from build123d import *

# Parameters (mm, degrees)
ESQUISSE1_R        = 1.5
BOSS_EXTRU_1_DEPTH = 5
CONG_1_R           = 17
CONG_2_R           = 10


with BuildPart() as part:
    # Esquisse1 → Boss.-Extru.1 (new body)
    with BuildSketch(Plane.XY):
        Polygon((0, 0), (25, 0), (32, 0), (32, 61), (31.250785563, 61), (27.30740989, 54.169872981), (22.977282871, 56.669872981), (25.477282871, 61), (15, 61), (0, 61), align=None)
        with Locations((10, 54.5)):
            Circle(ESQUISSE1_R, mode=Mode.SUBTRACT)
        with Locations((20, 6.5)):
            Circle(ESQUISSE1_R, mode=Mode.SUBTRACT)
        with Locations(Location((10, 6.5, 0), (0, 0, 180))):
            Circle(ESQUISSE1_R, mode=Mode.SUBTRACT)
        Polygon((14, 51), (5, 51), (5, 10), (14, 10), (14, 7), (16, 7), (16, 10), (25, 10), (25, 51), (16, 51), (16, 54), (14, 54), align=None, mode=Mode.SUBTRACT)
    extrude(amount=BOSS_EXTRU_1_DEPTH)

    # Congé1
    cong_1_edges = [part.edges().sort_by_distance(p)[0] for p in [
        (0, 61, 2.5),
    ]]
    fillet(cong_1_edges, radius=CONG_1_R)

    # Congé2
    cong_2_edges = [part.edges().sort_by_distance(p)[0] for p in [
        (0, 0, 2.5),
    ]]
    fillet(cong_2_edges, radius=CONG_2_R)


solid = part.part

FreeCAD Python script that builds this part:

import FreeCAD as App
import Part
import Sketcher
Q = App.Units.Quantity


def edges_at(feature, points):
    """Names of the edges that pass closest to the given points."""
    edges = feature.Shape.Edges
    near = lambda p: min(range(len(edges)), key=lambda i: edges[i].distToShape(Part.Vertex(*p))[0])
    return sorted({f"Edge{near(p) + 1}" for p in points})


def add_polygon(sketch, points):
    """Adds a closed chain of lines whose ends are joined by coincident constraints."""
    first, n = sketch.GeometryCount, len(points)
    for a, b in zip(points, points[1:] + points[:1]):
        sketch.addGeometry(Part.LineSegment(App.Vector(*a, 0), App.Vector(*b, 0)), False)
    for i in range(n):
        sketch.addConstraint(Sketcher.Constraint("Coincident", first + i, 2, first + (i + 1) % n, 1))

doc = App.newDocument("Part")
params = doc.addObject("Spreadsheet::Sheet", "Params")
for row, (alias, value) in enumerate([
    ("sketch1_diameter", "3 mm"),
    ("sketch1_width", "32 mm"),
    ("sketch1_width2", "9 mm"),
    ("sketch1_width3", "2 mm"),
    ("sketch1_height", "61 mm"),
    ("pad1_length", "5 mm"),
    ("fillet_radius", "17 mm"),
    ("fillet2_radius", "10 mm"),
], start=1):
    params.set(f"A{row}", alias)
    params.set(f"B{row}", "=" + value)
    params.setAlias(f"B{row}", alias)

body = doc.addObject("PartDesign::Body", "Body")

# Sketch on XY plane
sketch1 = body.newObject("Sketcher::SketchObject", "Sketch")
sketch1.AttachmentSupport = (doc.getObject("XY_Plane"), [""])
sketch1.MapMode = "FlatFace"
add_polygon(sketch1, [(0, 0), (32, 0), (32, 61), (31.3, 61), (27.3, 54.2), (23, 56.7), (25.5, 61), (0, 61)])  # lines 0-7
sketch1.addGeometry(Part.Circle(App.Vector(10, 6.5, 0), App.Vector(0, 0, 1), 1.5), False)  # 8
sketch1.addGeometry(Part.Circle(App.Vector(20, 6.5, 0), App.Vector(0, 0, 1), 1.5), False)  # 9
sketch1.addGeometry(Part.Circle(App.Vector(10, 54.5, 0), App.Vector(0, 0, 1), 1.5), False)  # 10
add_polygon(sketch1, [(5, 51), (14, 51), (14, 54), (16, 54), (16, 51), (25, 51), (25, 10), (16, 10), (16, 7), (14, 7), (14, 10), (5, 10)])  # lines 11-22
sketch1.addConstraint([
    Sketcher.Constraint("Horizontal", 0),
    Sketcher.Constraint("Vertical", 1),
    Sketcher.Constraint("Horizontal", 2),
    Sketcher.Constraint("Horizontal", 6),
    Sketcher.Constraint("Vertical", 7),
    Sketcher.Constraint("Horizontal", 11),
    Sketcher.Constraint("Vertical", 12),
    Sketcher.Constraint("Horizontal", 13),
    Sketcher.Constraint("Vertical", 14),
    Sketcher.Constraint("Horizontal", 15),
    Sketcher.Constraint("Vertical", 16),
    Sketcher.Constraint("Horizontal", 17),
    Sketcher.Constraint("Vertical", 18),
    Sketcher.Constraint("Horizontal", 19),
    Sketcher.Constraint("Vertical", 20),
    Sketcher.Constraint("Horizontal", 21),
    Sketcher.Constraint("Vertical", 22),
    Sketcher.Constraint("Coincident", 7, 2, -1, 1),
    Sketcher.Constraint("Equal", 8, 9),
    Sketcher.Constraint("Equal", 9, 10),
    Sketcher.Constraint("Perpendicular", 3, 4),
    Sketcher.Constraint("Perpendicular", 4, 5),
    Sketcher.Constraint("Horizontal", 8, 3, 9, 3),
    Sketcher.Constraint("Horizontal", 2, 2, 5, 2),
    Sketcher.Constraint("Horizontal", 11, 2, 14, 2),
    Sketcher.Constraint("Horizontal", 17, 2, 20, 2),
    Sketcher.Constraint("Vertical", 8, 3, 10, 3),
    Sketcher.Constraint("Vertical", 14, 2, 17, 2),
    Sketcher.Constraint("Vertical", 12, 2, 19, 2),
    Sketcher.Constraint("Equal", 11, 15),
    Sketcher.Constraint("Equal", 14, 18),
    Sketcher.Constraint("Equal", 4, 5),
    Sketcher.Constraint("Diameter", 8, 3.0),
    Sketcher.Constraint("DistanceX", 0, 1, 0, 2, 32.0),
    Sketcher.Constraint("DistanceX", 11, 1, 11, 2, 9.0),
    Sketcher.Constraint("DistanceX", 13, 1, 13, 2, 2.0),
    Sketcher.Constraint("DistanceY", 1, 1, 1, 2, 61.0),
    Sketcher.Constraint("DistanceY", 12, 1, 12, 2, 3.0),
    Sketcher.Constraint("DistanceY", 16, 2, 16, 1, 41.0),
    Sketcher.Constraint("Angle", 3, Q("-120 deg")),
    Sketcher.Constraint("Distance", 4, 5.0),
    Sketcher.Constraint("DistanceX", -1, 1, 8, 3, 10.0),
    Sketcher.Constraint("DistanceX", -1, 1, 9, 3, 20.0),
    Sketcher.Constraint("DistanceX", -1, 1, 11, 2, 14.0),
    Sketcher.Constraint("DistanceY", -1, 1, 11, 2, 51.0),
    Sketcher.Constraint("DistanceY", 8, 3, 10, 3, 48.0),
    Sketcher.Constraint("DistanceY", -1, 1, 8, 3, 6.5),
    Sketcher.Constraint("DistanceX", 2, 2, 2, 1, 0.749214),
])
sketch1.setExpression("Constraints[52]", "Params.sketch1_diameter")
sketch1.setExpression("Constraints[53]", "Params.sketch1_width")
sketch1.setExpression("Constraints[54]", "Params.sketch1_width2")
sketch1.setExpression("Constraints[55]", "Params.sketch1_width3")
sketch1.setExpression("Constraints[56]", "Params.sketch1_height")
pad1 = body.newObject("PartDesign::Pad", "Pad")
pad1.Profile = sketch1
pad1.setExpression("Length", "Params.pad1_length")
doc.recompute()

fillet = body.newObject("PartDesign::Fillet", "Fillet")
fillet.Base = (pad1, edges_at(pad1, [(0, 61, 2.5)]))
fillet.setExpression("Radius", "Params.fillet_radius")
doc.recompute()

fillet2 = body.newObject("PartDesign::Fillet", "Fillet001")
fillet2.Base = (fillet, edges_at(fillet, [(0, 0, 2.5)]))
fillet2.setExpression("Radius", "Params.fillet2_radius")

doc.recompute()
